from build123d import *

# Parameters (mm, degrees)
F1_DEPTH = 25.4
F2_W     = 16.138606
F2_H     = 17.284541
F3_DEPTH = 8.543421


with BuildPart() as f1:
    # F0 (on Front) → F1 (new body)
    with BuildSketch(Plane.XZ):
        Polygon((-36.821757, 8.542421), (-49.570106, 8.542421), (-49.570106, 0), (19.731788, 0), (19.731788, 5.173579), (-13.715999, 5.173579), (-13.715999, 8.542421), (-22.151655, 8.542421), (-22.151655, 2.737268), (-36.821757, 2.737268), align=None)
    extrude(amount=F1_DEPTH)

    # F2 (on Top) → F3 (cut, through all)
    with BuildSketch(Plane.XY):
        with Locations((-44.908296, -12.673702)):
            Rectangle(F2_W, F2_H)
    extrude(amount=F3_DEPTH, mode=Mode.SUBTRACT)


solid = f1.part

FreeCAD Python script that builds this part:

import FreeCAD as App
import Part
import Sketcher

V = App.Vector
Q = App.Units.Quantity


def add_polygon(sketch, points):
    """Adds a closed chain of lines whose ends are joined by coincident constraints."""
    first, n = sketch.GeometryCount, len(points)
    for a, b in zip(points, points[1:] + points[:1]):
        sketch.addGeometry(Part.LineSegment(App.Vector(*a, 0), App.Vector(*b, 0)), False)
    for i in range(n):
        sketch.addConstraint(Sketcher.Constraint("Coincident", first + i, 2, first + (i + 1) % n, 1))

doc = App.newDocument("Part")
body = doc.addObject("PartDesign::Body", "Body")

# Sketch on XZ plane
sketch1 = body.newObject("Sketcher::SketchObject", "Sketch")
sketch1.AttachmentSupport = (doc.getObject("XZ_Plane"), [""])
sketch1.MapMode = "FlatFace"
add_polygon(sketch1, [(-36.8, 8.5), (-49.6, 8.5), (-49.6, 0), (19.7, 0), (19.7, 5.2), (-13.7, 5.2), (-13.7, 8.5), (-22.2, 8.5), (-22.2, 2.7), (-36.8, 2.7)])  # lines 0-9
sketch1.addConstraint([
    Sketcher.Constraint("Horizontal", 0),
    Sketcher.Constraint("Vertical", 1),
    Sketcher.Constraint("Horizontal", 2),
    Sketcher.Constraint("Vertical", 3),
    Sketcher.Constraint("Horizontal", 4),
    Sketcher.Constraint("Vertical", 5),
    Sketcher.Constraint("Horizontal", 6),
    Sketcher.Constraint("Vertical", 7),
    Sketcher.Constraint("Horizontal", 8),
    Sketcher.Constraint("Vertical", 9),
    Sketcher.Constraint("PointOnObject", 1, 2, -1),
    Sketcher.Constraint("Horizontal", 0, 2, 5, 2),
    Sketcher.Constraint("DistanceX", 4, 2, -1, 1, Q("0.54 in")),
    Sketcher.Constraint("DistanceX", 8, 2, 8, 1, 14.670102),
    Sketcher.Constraint("DistanceX", 0, 2, 0, 1, 12.748349),
    Sketcher.Constraint("DistanceY", 1, 2, 1, 1, 8.542421),
    Sketcher.Constraint("DistanceY", 3, 1, 3, 2, 5.173579),
    Sketcher.Constraint("DistanceX", 2, 1, 2, 2, 69.301894),
    Sketcher.Constraint("DistanceX", 4, 2, 4, 1, 33.447787),
    Sketcher.Constraint("DistanceY", 7, 2, 7, 1, 5.805153),
])
pad1 = body.newObject("PartDesign::Pad", "Pad")
pad1.Profile = sketch1
pad1.Length = Q("1 in")

# Sketch on XY plane
sketch2 = body.newObject("Sketcher::SketchObject", "Sketch001")
sketch2.AttachmentSupport = (doc.getObject("XY_Plane"), [""])
sketch2.MapMode = "FlatFace"
add_polygon(sketch2, [(-53, -4), (-53, -21), (-37, -21), (-37, -4)])  # lines 0-3
sketch2.addConstraint([
    Sketcher.Constraint("Vertical", 0),
    Sketcher.Constraint("Horizontal", 1),
    Sketcher.Constraint("Vertical", 2),
    Sketcher.Constraint("Horizontal", 3),
    Sketcher.Constraint("DistanceY", 0, 2, 0, 1, 17.284541),
    Sketcher.Constraint("DistanceX", 0, 2, -1, 1, 52.977599),
    Sketcher.Constraint("DistanceX", 1, 1, 1, 2, 16.138606),
    Sketcher.Constraint("DistanceY", 2, 2, -1, 1, 4.031432),
])
pocket1 = body.newObject("PartDesign::Pocket", "Pocket")
pocket1.Profile = sketch2
pocket1.Type = "ThroughAll"
pocket1.Reversed = True

doc.recompute()
